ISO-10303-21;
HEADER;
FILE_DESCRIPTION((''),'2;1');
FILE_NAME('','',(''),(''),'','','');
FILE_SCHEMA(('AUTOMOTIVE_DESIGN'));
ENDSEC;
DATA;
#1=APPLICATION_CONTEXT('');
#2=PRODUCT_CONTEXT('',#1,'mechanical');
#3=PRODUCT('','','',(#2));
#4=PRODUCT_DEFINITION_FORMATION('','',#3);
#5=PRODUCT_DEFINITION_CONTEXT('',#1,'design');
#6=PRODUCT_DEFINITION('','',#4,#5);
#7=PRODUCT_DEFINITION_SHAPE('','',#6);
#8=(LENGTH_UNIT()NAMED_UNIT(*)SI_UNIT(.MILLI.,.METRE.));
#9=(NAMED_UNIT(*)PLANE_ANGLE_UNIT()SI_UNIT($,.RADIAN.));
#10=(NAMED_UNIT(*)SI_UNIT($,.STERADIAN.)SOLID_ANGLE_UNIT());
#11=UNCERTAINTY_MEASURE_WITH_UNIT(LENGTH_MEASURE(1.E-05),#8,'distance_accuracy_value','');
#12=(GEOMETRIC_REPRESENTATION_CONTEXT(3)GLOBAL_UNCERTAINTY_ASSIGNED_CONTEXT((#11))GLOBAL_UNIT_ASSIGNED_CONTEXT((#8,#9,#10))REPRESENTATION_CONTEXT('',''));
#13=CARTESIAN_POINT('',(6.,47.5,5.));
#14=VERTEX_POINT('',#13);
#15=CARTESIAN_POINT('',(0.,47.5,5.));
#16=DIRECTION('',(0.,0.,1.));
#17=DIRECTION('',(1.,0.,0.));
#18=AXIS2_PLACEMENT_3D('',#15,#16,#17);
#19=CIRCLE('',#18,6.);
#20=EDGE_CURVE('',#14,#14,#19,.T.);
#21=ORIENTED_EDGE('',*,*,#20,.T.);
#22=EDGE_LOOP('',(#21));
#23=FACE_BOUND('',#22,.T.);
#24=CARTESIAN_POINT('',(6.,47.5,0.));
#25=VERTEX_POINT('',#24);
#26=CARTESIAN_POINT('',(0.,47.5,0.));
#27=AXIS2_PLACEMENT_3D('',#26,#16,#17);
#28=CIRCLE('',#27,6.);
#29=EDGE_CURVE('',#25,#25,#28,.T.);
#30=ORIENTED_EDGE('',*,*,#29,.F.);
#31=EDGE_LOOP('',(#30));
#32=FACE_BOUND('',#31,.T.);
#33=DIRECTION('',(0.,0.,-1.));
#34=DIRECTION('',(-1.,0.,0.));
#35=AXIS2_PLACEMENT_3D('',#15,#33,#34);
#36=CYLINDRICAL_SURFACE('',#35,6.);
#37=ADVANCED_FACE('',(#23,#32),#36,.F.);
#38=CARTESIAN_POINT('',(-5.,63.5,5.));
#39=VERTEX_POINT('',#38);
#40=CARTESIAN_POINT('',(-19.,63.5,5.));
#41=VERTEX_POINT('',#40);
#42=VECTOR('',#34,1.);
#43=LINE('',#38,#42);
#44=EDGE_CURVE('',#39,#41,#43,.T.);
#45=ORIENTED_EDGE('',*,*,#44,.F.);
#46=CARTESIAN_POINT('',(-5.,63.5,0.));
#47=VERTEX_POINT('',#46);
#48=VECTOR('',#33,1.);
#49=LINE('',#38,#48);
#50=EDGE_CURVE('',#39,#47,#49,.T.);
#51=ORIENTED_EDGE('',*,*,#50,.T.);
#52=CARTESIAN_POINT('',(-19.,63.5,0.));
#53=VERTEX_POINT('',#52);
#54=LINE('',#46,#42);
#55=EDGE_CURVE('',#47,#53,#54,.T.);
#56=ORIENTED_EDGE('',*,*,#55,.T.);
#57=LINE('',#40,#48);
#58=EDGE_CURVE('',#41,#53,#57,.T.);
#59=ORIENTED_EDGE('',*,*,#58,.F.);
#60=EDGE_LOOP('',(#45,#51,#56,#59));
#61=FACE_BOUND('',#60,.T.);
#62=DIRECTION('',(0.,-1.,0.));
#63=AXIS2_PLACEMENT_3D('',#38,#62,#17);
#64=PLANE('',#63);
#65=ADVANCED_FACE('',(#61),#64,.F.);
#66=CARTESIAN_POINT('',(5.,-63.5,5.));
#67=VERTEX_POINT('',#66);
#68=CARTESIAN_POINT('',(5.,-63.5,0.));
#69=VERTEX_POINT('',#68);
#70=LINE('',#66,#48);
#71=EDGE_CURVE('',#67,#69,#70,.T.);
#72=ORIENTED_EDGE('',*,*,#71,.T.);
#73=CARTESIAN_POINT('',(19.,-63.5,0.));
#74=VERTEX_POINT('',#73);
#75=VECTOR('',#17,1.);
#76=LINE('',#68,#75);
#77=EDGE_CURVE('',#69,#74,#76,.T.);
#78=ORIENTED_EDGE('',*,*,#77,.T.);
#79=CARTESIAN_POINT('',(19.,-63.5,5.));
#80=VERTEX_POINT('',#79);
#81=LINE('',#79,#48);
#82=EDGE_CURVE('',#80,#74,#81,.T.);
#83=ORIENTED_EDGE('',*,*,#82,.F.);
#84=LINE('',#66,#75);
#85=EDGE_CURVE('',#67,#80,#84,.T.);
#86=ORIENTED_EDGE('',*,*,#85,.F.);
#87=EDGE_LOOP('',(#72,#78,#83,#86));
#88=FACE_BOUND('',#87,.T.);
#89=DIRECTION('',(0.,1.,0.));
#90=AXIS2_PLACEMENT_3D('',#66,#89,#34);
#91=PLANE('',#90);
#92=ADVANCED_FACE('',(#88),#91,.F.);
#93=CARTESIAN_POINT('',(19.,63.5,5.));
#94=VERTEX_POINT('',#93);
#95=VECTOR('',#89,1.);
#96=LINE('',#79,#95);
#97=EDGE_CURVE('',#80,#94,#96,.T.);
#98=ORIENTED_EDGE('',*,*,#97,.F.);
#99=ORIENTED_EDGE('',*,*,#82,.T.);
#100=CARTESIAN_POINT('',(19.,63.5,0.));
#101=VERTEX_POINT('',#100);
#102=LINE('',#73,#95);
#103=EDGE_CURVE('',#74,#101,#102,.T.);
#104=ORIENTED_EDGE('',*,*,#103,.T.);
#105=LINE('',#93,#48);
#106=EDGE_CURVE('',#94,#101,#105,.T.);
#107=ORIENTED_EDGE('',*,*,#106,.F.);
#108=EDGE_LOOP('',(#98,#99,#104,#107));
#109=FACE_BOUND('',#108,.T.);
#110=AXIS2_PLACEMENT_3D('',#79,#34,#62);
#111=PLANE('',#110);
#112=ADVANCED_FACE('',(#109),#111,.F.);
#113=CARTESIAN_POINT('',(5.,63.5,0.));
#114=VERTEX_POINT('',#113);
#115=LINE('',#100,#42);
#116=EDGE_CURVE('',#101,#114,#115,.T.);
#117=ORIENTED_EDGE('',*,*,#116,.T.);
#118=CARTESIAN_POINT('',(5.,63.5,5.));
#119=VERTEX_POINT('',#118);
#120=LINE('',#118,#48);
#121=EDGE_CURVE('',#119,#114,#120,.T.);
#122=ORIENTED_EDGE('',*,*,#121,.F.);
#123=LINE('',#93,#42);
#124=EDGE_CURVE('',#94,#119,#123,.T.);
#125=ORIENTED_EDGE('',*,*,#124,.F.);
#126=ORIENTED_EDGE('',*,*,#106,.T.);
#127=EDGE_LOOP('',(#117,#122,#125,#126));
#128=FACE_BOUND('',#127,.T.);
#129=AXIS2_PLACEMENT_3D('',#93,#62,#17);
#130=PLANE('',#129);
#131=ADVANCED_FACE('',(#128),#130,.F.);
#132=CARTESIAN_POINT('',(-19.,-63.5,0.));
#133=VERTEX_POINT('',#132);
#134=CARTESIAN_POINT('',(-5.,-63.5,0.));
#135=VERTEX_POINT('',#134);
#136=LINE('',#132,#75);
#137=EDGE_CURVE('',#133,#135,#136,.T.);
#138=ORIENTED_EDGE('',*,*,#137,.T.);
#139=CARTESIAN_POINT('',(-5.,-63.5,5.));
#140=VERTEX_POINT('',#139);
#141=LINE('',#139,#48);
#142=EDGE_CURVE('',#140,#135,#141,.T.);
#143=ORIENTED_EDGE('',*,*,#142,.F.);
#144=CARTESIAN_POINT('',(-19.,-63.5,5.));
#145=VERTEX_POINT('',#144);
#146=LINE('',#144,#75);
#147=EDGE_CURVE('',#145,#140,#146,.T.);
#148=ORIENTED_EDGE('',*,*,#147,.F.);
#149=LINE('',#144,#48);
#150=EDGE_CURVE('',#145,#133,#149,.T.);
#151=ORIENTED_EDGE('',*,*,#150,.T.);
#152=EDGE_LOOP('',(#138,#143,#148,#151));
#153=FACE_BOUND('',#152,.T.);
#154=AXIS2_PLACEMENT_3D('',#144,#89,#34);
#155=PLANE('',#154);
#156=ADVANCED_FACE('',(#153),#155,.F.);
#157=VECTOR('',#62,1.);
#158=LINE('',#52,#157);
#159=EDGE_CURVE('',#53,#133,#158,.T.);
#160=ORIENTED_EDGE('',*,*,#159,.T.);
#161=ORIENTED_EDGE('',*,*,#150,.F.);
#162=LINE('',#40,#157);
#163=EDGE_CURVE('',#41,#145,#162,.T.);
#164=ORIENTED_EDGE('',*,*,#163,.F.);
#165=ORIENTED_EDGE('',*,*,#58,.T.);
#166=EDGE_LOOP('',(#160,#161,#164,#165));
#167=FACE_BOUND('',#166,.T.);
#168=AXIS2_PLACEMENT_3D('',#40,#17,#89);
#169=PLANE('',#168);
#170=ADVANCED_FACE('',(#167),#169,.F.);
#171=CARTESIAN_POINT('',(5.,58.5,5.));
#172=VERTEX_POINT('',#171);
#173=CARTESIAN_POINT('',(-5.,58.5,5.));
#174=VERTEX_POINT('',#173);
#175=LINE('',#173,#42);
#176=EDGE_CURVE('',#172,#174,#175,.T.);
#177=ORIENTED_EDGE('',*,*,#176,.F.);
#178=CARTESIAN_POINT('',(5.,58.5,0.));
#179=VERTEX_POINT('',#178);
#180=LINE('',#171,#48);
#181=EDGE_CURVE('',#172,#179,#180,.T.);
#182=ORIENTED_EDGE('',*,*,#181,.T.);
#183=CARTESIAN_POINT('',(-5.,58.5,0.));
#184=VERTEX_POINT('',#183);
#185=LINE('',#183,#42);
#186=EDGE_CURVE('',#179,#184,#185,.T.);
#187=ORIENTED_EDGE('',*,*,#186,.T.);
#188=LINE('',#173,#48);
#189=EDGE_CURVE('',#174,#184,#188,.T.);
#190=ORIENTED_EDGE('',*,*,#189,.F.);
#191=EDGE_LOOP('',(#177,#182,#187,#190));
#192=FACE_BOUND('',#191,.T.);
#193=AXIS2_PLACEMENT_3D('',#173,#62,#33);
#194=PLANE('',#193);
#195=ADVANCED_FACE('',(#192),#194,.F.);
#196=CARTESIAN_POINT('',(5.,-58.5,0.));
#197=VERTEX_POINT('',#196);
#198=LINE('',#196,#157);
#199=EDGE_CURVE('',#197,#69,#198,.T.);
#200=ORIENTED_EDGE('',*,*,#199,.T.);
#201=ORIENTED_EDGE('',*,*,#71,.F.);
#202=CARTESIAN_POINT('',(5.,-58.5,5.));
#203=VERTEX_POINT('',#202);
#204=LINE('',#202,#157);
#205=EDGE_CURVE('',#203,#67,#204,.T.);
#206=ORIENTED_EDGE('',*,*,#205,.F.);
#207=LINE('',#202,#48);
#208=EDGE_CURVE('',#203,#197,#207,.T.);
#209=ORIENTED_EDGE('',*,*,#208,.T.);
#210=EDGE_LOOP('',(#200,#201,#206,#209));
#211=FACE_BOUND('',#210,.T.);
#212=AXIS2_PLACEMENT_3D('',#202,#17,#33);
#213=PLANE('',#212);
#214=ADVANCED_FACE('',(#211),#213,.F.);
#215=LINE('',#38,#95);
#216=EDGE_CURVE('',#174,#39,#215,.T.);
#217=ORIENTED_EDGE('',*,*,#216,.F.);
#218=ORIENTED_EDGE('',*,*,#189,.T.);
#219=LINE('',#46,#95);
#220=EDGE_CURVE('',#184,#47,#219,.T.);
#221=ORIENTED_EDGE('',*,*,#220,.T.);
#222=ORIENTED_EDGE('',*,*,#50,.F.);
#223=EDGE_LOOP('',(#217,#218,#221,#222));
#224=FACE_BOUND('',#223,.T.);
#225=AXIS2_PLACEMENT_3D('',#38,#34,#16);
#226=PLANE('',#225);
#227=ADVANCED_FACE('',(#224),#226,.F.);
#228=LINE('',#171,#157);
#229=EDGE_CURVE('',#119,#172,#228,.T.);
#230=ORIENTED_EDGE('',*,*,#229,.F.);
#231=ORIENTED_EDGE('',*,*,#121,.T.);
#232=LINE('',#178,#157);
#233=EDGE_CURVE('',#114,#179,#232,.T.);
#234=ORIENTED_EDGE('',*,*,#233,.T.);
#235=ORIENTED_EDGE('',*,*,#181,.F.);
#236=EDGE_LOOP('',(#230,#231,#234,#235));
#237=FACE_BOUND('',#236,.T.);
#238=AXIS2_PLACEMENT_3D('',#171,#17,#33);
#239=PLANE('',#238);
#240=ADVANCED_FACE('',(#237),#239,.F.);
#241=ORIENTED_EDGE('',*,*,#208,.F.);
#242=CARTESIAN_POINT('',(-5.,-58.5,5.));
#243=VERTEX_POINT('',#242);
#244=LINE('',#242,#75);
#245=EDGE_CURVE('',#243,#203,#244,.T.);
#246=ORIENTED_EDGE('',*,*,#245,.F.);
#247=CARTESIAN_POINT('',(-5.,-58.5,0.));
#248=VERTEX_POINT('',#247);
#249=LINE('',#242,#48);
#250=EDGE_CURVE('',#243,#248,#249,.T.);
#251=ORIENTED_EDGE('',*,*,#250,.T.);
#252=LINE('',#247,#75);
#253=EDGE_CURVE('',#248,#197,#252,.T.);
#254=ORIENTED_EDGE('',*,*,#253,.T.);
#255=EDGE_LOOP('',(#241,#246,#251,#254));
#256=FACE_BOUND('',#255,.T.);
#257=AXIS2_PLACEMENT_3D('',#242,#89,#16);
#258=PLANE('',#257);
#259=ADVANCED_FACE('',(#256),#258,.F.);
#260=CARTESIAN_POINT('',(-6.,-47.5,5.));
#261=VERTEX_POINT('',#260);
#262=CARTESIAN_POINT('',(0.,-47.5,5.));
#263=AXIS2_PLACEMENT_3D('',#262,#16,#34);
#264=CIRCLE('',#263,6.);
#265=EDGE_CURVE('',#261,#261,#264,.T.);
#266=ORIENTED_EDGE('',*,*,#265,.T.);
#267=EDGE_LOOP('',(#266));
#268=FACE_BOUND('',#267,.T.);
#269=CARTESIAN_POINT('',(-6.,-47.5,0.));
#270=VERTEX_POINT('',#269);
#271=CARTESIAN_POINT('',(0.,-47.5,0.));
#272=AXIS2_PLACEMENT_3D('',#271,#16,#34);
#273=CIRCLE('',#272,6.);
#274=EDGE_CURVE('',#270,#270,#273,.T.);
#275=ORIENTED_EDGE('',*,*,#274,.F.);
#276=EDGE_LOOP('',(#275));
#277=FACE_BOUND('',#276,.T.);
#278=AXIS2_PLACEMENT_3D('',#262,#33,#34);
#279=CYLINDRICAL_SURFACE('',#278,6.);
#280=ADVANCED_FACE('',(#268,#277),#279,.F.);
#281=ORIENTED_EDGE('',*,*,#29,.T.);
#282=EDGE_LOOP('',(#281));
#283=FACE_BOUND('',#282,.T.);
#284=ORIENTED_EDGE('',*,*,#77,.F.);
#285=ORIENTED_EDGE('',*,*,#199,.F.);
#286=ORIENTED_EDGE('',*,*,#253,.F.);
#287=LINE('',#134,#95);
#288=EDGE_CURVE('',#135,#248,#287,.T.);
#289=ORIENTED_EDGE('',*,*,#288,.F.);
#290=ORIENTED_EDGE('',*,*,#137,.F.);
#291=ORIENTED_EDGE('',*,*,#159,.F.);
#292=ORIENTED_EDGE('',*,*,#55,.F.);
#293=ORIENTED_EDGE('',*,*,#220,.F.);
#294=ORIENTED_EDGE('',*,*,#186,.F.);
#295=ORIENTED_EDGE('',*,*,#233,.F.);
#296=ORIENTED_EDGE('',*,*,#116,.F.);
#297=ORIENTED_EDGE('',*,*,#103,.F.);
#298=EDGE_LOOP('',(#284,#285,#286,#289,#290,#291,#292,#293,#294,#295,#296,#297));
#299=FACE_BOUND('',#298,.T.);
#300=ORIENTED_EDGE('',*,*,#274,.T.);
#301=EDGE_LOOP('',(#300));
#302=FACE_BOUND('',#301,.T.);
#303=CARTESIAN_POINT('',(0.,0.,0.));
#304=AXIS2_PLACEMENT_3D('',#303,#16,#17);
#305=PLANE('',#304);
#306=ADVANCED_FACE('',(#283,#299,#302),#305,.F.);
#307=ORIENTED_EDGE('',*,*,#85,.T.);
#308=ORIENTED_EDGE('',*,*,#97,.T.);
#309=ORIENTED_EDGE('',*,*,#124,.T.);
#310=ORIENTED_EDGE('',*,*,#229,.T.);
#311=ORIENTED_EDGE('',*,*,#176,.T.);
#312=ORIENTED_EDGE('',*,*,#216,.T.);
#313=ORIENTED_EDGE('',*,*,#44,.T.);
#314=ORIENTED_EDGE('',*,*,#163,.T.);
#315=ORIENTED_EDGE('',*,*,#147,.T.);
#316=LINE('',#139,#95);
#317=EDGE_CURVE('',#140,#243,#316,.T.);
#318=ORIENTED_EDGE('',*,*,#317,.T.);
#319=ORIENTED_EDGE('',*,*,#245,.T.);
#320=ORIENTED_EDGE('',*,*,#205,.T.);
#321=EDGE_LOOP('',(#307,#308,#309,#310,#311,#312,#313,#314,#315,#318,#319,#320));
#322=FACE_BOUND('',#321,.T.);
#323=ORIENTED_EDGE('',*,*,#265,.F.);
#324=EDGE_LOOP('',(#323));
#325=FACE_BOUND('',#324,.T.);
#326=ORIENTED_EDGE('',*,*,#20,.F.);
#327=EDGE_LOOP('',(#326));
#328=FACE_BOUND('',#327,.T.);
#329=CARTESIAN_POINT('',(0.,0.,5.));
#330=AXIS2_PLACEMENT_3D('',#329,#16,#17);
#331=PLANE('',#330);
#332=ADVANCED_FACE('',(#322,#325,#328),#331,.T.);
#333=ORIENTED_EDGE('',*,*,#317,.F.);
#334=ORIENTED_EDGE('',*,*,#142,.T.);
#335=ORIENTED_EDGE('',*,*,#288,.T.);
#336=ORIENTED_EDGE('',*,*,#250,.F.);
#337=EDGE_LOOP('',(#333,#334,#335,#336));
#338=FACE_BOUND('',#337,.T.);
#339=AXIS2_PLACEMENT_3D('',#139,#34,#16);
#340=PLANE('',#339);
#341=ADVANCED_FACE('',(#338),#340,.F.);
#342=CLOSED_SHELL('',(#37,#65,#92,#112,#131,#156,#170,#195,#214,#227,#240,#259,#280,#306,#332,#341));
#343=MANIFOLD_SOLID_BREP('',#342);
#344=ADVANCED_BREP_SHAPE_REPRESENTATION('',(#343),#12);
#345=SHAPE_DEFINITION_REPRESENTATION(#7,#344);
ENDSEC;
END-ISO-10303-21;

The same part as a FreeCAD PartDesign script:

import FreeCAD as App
import Part
import Sketcher

doc = App.newDocument("Part")
params = doc.addObject("Spreadsheet::Sheet", "Params")
for row, (alias, value) in enumerate([
    ("sketch1_diameter", "12 mm"),
    ("sketch1_width", "14 mm"),
    ("sketch1_width2", "10 mm"),
    ("sketch1_height", "127 mm"),
    ("sketch1_height2", "5 mm"),
    ("pad1_length", "5 mm"),
], start=1):
    params.set(f"A{row}", alias)
    params.set(f"B{row}", "=" + value)
    params.setAlias(f"B{row}", alias)

body = doc.addObject("PartDesign::Body", "Body")

# Sketch on XY plane
sketch1 = body.newObject("Sketcher::SketchObject", "Sketch")
sketch1.AttachmentSupport = (doc.getObject("XY_Plane"), [""])
sketch1.MapMode = "FlatFace"
sketch1.addGeometry([
    Part.LineSegment(App.Vector(-5, 64, 0), App.Vector(-19, 64, 0)),  # 0
    Part.LineSegment(App.Vector(-19, 64, 0), App.Vector(-19, -64, 0)),  # 1
    Part.LineSegment(App.Vector(-19, -64, 0), App.Vector(-5, -64, 0)),  # 2
    Part.LineSegment(App.Vector(-5, -64, 0), App.Vector(-5, -58, 0)),  # 3
    Part.LineSegment(App.Vector(-5, -58, 0), App.Vector(5, -58, 0)),  # 4
    Part.LineSegment(App.Vector(5, -58, 0), App.Vector(5, -64, 0)),  # 5
    Part.LineSegment(App.Vector(5, -64, 0), App.Vector(19, -64, 0)),  # 6
    Part.LineSegment(App.Vector(19, -64, 0), App.Vector(19, 64, 0)),  # 7
    Part.LineSegment(App.Vector(19, 64, 0), App.Vector(5, 64, 0)),  # 8
    Part.LineSegment(App.Vector(5, 64, 0), App.Vector(5, 58, 0)),  # 9
    Part.LineSegment(App.Vector(5, 58, 0), App.Vector(-5, 58, 0)),  # 10
    Part.LineSegment(App.Vector(-5, 58, 0), App.Vector(-5, 64, 0)),  # 11
    Part.Circle(App.Vector(0, -48, 0), App.Vector(0, 0, 1), 6),  # 12
    Part.Circle(App.Vector(0, 48, 0), App.Vector(0, 0, 1), 6),  # 13
], False)
sketch1.addConstraint([
    Sketcher.Constraint("Coincident", 0, 2, 1, 1),
    Sketcher.Constraint("Coincident", 1, 2, 2, 1),
    Sketcher.Constraint("Coincident", 2, 2, 3, 1),
    Sketcher.Constraint("Coincident", 3, 2, 4, 1),
    Sketcher.Constraint("Coincident", 4, 2, 5, 1),
    Sketcher.Constraint("Coincident", 5, 2, 6, 1),
    Sketcher.Constraint("Coincident", 6, 2, 7, 1),
    Sketcher.Constraint("Coincident", 7, 2, 8, 1),
    Sketcher.Constraint("Coincident", 8, 2, 9, 1),
    Sketcher.Constraint("Coincident", 9, 2, 10, 1),
    Sketcher.Constraint("Coincident", 10, 2, 11, 1),
    Sketcher.Constraint("Coincident", 11, 2, 0, 1),
    Sketcher.Constraint("Horizontal", 0),
    Sketcher.Constraint("Vertical", 1),
    Sketcher.Constraint("Horizontal", 2),
    Sketcher.Constraint("Vertical", 3),
    Sketcher.Constraint("Horizontal", 4),
    Sketcher.Constraint("Vertical", 5),
    Sketcher.Constraint("Horizontal", 6),
    Sketcher.Constraint("Vertical", 7),
    Sketcher.Constraint("Horizontal", 8),
    Sketcher.Constraint("Vertical", 9),
    Sketcher.Constraint("Horizontal", 10),
    Sketcher.Constraint("Vertical", 11),
    Sketcher.Constraint("Equal", 12, 13),
    Sketcher.Constraint("Symmetric", 12, 3, 13, 3, -1, 1),
    Sketcher.Constraint("Symmetric", 0, 2, 6, 2, -1, 1),
    Sketcher.Constraint("Symmetric", 2, 2, 8, 2, -1, 1),
    Sketcher.Constraint("Symmetric", 4, 2, 10, 2, -1, 1),
    Sketcher.Constraint("Symmetric", 2, 2, 5, 2, -2),
    Sketcher.Constraint("PointOnObject", 12, 3, -2),
    Sketcher.Constraint("Diameter", 12, 12.0),
    Sketcher.Constraint("DistanceX", 0, 2, 0, 1, 14.0),
    Sketcher.Constraint("DistanceX", 4, 1, 4, 2, 10.0),
    Sketcher.Constraint("DistanceY", 1, 2, 1, 1, 127.0),
    Sketcher.Constraint("DistanceY", 3, 1, 3, 2, 5.0),
    Sketcher.Constraint("DistanceY", 12, 3, 13, 3, 95.0),
])
sketch1.setExpression("Constraints[31]", "Params.sketch1_diameter")
sketch1.setExpression("Constraints[32]", "Params.sketch1_width")
sketch1.setExpression("Constraints[33]", "Params.sketch1_width2")
sketch1.setExpression("Constraints[34]", "Params.sketch1_height")
sketch1.setExpression("Constraints[35]", "Params.sketch1_height2")
pad1 = body.newObject("PartDesign::Pad", "Pad")
pad1.Profile = sketch1
pad1.setExpression("Length", "Params.pad1_length")

doc.recompute()
